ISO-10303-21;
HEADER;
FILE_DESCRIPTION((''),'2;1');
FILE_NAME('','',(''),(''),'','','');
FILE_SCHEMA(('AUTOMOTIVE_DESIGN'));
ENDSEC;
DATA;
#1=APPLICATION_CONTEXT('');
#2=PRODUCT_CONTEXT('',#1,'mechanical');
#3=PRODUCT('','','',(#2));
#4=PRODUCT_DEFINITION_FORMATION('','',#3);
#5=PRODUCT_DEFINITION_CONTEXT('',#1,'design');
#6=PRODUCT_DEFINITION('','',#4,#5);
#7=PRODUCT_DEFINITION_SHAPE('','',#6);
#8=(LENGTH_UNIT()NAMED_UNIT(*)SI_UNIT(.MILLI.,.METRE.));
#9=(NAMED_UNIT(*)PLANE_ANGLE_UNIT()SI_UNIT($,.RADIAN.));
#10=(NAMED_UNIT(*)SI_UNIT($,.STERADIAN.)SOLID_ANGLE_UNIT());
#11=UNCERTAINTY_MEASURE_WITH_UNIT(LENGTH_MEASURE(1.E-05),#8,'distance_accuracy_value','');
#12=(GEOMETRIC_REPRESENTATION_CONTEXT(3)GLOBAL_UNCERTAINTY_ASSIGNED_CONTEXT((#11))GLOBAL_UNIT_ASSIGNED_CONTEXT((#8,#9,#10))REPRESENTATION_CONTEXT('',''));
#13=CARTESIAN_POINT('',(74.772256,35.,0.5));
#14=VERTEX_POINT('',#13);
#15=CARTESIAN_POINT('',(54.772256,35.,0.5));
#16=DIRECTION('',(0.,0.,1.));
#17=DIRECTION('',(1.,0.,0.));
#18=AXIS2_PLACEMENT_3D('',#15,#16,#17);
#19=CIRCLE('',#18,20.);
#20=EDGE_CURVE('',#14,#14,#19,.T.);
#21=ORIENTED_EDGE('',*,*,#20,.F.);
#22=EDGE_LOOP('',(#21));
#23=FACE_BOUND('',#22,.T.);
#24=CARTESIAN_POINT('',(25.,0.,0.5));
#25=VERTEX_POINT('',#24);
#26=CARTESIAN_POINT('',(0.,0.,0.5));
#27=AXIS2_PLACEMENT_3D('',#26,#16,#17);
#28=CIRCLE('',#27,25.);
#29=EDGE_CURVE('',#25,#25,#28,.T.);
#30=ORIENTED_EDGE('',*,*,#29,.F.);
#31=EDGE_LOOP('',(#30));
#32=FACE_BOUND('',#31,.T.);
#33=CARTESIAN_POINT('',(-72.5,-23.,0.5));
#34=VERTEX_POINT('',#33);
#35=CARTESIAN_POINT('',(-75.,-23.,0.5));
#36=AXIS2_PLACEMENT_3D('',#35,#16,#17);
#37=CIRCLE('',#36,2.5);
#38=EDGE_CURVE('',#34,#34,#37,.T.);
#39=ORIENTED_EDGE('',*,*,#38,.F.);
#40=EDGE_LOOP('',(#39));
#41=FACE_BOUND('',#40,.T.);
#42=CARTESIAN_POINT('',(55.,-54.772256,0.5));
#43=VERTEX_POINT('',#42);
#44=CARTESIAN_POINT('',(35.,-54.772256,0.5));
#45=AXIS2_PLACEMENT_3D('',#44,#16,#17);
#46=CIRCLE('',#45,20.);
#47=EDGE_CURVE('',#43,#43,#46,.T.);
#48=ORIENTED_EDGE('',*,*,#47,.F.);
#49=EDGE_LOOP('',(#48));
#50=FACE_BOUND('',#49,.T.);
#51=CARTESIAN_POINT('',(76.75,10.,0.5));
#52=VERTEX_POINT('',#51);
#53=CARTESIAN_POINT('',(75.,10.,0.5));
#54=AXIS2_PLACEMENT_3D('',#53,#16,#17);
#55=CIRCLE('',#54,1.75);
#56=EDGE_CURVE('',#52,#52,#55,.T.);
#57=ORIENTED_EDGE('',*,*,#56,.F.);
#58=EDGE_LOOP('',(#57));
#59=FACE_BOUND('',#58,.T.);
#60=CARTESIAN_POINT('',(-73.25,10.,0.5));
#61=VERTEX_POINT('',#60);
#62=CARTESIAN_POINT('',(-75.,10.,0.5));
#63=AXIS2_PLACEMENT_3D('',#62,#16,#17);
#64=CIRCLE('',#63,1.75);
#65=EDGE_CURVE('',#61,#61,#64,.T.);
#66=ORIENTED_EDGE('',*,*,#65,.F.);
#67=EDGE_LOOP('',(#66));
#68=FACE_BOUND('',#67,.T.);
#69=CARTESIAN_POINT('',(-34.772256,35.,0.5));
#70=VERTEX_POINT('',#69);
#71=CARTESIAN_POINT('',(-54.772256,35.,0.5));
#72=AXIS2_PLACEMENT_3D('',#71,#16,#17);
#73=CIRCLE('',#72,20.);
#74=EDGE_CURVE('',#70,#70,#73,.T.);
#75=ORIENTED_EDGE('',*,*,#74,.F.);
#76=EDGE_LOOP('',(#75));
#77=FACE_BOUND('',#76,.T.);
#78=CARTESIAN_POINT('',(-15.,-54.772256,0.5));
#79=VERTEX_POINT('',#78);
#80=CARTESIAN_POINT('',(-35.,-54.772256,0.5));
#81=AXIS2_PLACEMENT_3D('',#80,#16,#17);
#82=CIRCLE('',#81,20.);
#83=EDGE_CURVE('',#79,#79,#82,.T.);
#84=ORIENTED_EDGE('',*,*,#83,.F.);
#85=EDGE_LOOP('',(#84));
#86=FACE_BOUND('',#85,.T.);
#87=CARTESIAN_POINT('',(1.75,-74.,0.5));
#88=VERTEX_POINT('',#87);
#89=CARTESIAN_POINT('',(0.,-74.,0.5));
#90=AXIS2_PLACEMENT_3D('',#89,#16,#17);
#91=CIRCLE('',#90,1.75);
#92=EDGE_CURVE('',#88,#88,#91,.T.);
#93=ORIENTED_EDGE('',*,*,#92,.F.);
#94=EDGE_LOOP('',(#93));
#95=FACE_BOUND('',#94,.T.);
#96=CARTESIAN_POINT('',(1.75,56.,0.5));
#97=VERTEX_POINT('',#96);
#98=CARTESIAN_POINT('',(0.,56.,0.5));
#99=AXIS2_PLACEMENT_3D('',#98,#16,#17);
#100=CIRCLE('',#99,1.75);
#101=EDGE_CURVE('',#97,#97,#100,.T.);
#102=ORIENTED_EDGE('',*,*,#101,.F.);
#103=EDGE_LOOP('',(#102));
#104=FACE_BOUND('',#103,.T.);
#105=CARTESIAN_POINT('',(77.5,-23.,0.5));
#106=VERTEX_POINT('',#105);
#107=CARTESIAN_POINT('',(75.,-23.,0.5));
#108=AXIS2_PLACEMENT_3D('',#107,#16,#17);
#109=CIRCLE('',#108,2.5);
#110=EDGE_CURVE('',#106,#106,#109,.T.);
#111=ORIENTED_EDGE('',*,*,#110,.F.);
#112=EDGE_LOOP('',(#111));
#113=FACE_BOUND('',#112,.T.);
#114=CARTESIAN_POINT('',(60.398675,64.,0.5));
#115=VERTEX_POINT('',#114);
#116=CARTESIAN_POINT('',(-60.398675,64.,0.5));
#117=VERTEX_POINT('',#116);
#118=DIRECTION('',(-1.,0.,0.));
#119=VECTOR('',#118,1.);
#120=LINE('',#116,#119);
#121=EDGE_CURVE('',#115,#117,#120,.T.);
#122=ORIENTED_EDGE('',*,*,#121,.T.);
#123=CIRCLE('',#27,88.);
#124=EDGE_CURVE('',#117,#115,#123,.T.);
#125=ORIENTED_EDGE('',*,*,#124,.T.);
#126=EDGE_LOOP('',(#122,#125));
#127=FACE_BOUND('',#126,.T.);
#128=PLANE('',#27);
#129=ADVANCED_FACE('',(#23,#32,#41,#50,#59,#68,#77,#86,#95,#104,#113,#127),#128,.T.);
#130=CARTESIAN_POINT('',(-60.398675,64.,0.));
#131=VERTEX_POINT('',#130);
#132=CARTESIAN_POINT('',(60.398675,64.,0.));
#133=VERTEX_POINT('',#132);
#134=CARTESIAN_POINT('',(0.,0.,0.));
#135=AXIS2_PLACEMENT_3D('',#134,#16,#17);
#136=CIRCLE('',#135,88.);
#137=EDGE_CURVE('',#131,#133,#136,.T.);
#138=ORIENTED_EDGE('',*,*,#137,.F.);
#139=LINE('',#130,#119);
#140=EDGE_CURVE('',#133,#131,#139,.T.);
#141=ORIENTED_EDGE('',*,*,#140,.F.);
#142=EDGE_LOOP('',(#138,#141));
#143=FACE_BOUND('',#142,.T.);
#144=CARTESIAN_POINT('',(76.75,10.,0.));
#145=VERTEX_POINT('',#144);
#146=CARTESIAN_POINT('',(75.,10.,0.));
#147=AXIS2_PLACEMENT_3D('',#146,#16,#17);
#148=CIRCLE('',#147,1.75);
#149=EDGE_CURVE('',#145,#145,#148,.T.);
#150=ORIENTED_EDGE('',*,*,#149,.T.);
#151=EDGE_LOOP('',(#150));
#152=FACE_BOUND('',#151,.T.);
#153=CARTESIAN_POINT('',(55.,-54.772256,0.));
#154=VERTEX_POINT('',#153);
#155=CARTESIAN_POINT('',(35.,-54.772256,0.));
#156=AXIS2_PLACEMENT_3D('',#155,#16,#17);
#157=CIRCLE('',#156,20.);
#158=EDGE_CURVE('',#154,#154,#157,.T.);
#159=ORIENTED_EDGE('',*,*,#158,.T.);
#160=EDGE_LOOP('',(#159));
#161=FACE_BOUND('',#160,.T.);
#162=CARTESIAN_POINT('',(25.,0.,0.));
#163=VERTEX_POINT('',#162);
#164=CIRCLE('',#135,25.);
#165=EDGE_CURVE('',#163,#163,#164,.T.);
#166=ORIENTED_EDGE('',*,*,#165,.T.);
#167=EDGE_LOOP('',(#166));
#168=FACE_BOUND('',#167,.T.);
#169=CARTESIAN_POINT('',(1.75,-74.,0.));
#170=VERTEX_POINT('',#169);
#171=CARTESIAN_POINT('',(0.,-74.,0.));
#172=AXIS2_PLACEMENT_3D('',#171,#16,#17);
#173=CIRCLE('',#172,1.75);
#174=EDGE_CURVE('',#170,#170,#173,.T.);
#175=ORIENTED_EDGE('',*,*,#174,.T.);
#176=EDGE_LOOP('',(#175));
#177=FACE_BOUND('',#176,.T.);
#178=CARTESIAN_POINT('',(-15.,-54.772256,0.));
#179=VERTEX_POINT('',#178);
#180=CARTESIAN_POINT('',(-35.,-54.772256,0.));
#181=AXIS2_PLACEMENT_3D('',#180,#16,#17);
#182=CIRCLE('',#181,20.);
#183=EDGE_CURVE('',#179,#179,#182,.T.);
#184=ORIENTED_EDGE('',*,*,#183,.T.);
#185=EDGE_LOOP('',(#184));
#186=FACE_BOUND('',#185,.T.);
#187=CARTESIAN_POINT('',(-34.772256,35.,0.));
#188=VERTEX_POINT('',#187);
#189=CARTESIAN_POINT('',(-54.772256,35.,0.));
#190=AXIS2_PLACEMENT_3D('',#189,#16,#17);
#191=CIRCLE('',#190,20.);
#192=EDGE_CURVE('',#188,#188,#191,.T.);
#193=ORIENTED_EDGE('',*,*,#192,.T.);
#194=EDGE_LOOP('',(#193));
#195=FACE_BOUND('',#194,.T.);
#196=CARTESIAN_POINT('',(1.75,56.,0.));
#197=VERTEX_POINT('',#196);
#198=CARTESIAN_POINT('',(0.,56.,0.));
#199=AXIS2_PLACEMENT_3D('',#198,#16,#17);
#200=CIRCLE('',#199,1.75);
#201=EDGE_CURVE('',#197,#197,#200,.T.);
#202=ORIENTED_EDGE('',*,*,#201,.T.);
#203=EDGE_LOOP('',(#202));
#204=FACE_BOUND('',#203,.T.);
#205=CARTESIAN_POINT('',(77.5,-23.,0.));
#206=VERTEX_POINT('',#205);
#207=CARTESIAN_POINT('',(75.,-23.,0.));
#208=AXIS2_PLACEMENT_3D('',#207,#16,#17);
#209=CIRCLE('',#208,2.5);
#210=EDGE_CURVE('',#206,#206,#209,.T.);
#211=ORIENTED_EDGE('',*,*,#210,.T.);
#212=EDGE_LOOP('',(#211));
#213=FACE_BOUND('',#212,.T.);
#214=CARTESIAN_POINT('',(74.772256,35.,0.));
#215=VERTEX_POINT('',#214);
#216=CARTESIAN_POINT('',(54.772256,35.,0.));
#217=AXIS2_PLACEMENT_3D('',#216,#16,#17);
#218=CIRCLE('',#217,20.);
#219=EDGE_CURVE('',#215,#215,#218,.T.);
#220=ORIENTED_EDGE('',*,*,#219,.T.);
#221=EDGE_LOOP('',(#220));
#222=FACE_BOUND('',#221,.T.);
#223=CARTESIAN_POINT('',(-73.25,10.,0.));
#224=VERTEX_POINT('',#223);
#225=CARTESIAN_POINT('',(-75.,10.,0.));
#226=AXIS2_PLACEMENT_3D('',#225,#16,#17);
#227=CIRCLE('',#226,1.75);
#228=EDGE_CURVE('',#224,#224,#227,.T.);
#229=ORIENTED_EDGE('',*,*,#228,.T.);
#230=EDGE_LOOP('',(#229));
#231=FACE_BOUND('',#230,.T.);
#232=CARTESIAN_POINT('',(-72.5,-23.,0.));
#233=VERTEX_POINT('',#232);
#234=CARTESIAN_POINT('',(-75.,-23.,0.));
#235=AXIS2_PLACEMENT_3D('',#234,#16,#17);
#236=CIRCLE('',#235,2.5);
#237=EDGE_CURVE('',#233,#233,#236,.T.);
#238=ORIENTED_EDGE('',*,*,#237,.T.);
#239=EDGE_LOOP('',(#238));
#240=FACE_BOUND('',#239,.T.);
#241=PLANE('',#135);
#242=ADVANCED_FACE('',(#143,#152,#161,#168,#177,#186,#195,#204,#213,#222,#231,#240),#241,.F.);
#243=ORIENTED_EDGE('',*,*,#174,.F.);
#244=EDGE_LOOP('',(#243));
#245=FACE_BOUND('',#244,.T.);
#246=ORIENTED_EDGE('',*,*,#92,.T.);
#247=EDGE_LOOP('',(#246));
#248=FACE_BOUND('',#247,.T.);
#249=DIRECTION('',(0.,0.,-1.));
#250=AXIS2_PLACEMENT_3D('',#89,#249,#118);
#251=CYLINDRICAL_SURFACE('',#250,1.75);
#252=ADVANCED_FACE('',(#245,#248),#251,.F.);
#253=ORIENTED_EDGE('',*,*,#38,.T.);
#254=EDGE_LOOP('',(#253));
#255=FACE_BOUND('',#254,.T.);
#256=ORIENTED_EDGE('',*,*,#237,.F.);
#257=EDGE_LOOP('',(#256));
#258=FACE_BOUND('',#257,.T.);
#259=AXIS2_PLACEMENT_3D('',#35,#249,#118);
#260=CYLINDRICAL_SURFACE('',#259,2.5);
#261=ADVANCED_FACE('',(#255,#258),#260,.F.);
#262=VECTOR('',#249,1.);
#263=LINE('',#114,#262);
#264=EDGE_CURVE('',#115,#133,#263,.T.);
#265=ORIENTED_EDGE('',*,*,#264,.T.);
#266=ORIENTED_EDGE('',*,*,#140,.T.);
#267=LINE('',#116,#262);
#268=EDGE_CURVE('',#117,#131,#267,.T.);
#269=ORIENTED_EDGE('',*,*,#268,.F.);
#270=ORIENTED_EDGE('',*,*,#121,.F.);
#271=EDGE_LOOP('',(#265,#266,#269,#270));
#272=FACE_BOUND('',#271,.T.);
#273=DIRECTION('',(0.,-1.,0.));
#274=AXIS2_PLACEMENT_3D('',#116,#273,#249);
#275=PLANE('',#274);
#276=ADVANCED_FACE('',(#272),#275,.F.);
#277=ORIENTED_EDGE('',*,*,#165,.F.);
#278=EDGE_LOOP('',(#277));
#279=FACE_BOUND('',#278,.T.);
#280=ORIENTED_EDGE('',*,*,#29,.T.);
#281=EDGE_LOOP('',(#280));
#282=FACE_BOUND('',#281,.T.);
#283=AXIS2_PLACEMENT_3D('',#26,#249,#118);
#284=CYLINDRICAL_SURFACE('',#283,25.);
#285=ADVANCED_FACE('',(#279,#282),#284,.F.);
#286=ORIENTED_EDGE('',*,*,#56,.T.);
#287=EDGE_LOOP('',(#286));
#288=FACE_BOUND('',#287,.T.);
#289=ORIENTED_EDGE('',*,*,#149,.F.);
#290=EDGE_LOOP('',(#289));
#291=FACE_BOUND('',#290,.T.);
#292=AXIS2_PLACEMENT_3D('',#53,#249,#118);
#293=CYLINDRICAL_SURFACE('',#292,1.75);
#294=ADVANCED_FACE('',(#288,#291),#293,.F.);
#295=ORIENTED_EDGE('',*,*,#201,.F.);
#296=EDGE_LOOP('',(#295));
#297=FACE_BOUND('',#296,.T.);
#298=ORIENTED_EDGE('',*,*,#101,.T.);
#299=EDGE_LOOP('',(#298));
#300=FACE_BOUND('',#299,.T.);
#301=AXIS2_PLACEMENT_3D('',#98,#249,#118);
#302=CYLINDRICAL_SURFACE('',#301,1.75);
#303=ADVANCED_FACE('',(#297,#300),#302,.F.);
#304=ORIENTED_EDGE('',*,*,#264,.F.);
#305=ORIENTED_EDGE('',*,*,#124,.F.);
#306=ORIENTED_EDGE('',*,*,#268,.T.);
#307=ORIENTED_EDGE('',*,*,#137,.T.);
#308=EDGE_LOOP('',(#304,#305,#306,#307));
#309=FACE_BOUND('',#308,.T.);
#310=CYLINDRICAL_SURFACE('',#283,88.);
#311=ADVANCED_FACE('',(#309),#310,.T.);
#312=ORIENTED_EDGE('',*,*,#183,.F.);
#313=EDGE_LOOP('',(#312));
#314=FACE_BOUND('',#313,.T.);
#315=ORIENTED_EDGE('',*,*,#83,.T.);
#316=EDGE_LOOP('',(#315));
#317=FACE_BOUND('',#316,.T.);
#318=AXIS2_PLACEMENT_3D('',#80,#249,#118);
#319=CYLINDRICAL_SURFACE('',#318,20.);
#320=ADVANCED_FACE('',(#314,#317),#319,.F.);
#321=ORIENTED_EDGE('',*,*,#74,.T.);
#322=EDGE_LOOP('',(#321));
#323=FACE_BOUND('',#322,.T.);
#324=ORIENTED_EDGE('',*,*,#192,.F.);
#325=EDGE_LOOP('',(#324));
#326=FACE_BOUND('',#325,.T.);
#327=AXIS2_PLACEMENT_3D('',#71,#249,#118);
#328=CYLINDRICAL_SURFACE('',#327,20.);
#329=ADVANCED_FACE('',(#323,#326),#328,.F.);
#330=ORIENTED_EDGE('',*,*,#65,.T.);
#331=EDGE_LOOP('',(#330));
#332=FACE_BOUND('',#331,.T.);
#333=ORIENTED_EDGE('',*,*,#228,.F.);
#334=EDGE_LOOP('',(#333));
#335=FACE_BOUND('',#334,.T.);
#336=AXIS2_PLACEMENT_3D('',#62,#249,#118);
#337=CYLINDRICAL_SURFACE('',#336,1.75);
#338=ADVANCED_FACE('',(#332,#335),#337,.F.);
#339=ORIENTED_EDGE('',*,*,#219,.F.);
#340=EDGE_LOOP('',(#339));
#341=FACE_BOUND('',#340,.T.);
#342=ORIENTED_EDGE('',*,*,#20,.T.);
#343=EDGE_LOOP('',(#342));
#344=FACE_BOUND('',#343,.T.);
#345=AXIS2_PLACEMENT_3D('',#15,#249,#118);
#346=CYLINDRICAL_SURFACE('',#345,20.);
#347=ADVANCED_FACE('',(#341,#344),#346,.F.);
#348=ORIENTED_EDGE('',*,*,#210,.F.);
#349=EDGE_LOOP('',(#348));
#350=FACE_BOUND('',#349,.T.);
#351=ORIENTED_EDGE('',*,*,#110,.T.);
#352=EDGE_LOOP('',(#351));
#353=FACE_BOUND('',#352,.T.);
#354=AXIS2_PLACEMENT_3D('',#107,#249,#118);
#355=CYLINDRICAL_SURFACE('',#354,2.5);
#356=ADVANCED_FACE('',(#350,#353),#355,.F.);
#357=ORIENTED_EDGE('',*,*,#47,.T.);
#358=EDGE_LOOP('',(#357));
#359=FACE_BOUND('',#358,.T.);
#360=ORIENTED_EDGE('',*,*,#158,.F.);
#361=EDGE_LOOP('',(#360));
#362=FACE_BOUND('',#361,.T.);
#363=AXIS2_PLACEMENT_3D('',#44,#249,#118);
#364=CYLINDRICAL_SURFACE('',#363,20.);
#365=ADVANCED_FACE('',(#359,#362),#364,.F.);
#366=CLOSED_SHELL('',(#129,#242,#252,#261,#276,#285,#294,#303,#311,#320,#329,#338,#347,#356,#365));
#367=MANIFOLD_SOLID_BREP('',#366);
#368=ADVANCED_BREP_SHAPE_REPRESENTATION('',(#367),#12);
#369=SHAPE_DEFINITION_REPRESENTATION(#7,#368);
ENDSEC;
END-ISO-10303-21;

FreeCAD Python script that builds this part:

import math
import FreeCAD as App
import Part
import Sketcher

V = App.Vector

doc = App.newDocument("Part")
body = doc.addObject("PartDesign::Body", "Body")

# Sketch on XY plane
sketch1 = body.newObject("Sketcher::SketchObject", "Sketch")
sketch1.AttachmentSupport = (doc.getObject("XY_Plane"), [""])
sketch1.MapMode = "FlatFace"
sketch1.addGeometry(Part.LineSegment(V(60.4, 64, 0), V(-60.4, 64, 0)), False)
sketch1.addGeometry(Part.ArcOfCircle(Part.Circle(V(0, 0, 0), V(0, 0, 1), 88), math.radians(133), math.radians(407)), False)
sketch1.addGeometry(Part.Circle(V(35, -54.8, 0), V(0, 0, 1), 20), False)
sketch1.addGeometry(Part.Circle(V(75, -23, 0), V(0, 0, 1), 2.5), False)
sketch1.addGeometry(Part.Circle(V(0, -74, 0), V(0, 0, 1), 1.8), False)
sketch1.addGeometry(Part.Circle(V(-35, -54.8, 0), V(0, 0, 1), 20), False)
sketch1.addGeometry(Part.Circle(V(-75, -23, 0), V(0, 0, 1), 2.5), False)
sketch1.addGeometry(Part.Circle(V(75, 10, 0), V(0, 0, 1), 1.8), False)
sketch1.addGeometry(Part.Circle(V(54.8, 35, 0), V(0, 0, 1), 20), False)
sketch1.addGeometry(Part.Circle(V(0, 0, 0), V(0, 0, 1), 25), False)
sketch1.addGeometry(Part.Circle(V(-75, 10, 0), V(0, 0, 1), 1.8), False)
sketch1.addGeometry(Part.Circle(V(0, 56, 0), V(0, 0, 1), 1.8), False)
sketch1.addGeometry(Part.Circle(V(-54.8, 35, 0), V(0, 0, 1), 20), False)
sketch1.addConstraint(Sketcher.Constraint("Coincident", 0, 1, 1, 2))
sketch1.addConstraint(Sketcher.Constraint("Coincident", 1, 1, 0, 2))
sketch1.addConstraint(Sketcher.Constraint("Horizontal", 0))
sketch1.addConstraint(Sketcher.Constraint("Coincident", 1, 3, -1, 1))
sketch1.addConstraint(Sketcher.Constraint("Coincident", 9, 3, -1, 1))
sketch1.addConstraint(Sketcher.Constraint("Equal", 2, 5))
sketch1.addConstraint(Sketcher.Constraint("Equal", 3, 6))
sketch1.addConstraint(Sketcher.Constraint("Equal", 4, 7))
sketch1.addConstraint(Sketcher.Constraint("Equal", 5, 8))
sketch1.addConstraint(Sketcher.Constraint("Equal", 7, 10))
sketch1.addConstraint(Sketcher.Constraint("Equal", 10, 11))
sketch1.addConstraint(Sketcher.Constraint("Equal", 8, 12))
sketch1.addConstraint(Sketcher.Constraint("Symmetric", 2, 3, 5, 3, -2))
sketch1.addConstraint(Sketcher.Constraint("Symmetric", 3, 3, 6, 3, -2))
sketch1.addConstraint(Sketcher.Constraint("Symmetric", 7, 3, 10, 3, -2))
sketch1.addConstraint(Sketcher.Constraint("Symmetric", 8, 3, 12, 3, -2))
sketch1.addConstraint(Sketcher.Constraint("PointOnObject", 4, 3, -2))
sketch1.addConstraint(Sketcher.Constraint("PointOnObject", 11, 3, -2))
sketch1.addConstraint(Sketcher.Constraint("Vertical", 3, 3, 7, 3))
sketch1.addConstraint(Sketcher.Constraint("Diameter", 2, 40.0))
sketch1.addConstraint(Sketcher.Constraint("Diameter", 3, 5.0))
sketch1.addConstraint(Sketcher.Constraint("Diameter", 9, 50.0))
sketch1.addConstraint(Sketcher.Constraint("Radius", 1, 88.0))
sketch1.addConstraint(Sketcher.Constraint("Diameter", 4, 3.5))
sketch1.addConstraint(Sketcher.Constraint("DistanceX", -1, 1, 2, 3, 35.0))
sketch1.addConstraint(Sketcher.Constraint("DistanceX", -1, 1, 3, 3, 75.0))
sketch1.addConstraint(Sketcher.Constraint("DistanceY", 3, 3, -1, 1, 23.0))
sketch1.addConstraint(Sketcher.Constraint("DistanceY", 4, 3, -1, 1, 74.0))
sketch1.addConstraint(Sketcher.Constraint("DistanceY", -1, 1, 7, 3, 10.0))
sketch1.addConstraint(Sketcher.Constraint("DistanceY", -1, 1, 8, 3, 35.0))
sketch1.addConstraint(Sketcher.Constraint("DistanceY", -1, 1, 11, 3, 56.0))
sketch1.addConstraint(Sketcher.Constraint("DistanceY", -1, 1, 0, 1, 64.0))
sketch1.addConstraint(Sketcher.Constraint("DistanceX", 8, 3, 0, 1, 5.62642))
sketch1.addConstraint(Sketcher.Constraint("DistanceY", 2, 3, -1, 1, 54.772256))
pad1 = body.newObject("PartDesign::Pad", "Pad")
pad1.Profile = sketch1
pad1.Length = 0.5

doc.recompute()
